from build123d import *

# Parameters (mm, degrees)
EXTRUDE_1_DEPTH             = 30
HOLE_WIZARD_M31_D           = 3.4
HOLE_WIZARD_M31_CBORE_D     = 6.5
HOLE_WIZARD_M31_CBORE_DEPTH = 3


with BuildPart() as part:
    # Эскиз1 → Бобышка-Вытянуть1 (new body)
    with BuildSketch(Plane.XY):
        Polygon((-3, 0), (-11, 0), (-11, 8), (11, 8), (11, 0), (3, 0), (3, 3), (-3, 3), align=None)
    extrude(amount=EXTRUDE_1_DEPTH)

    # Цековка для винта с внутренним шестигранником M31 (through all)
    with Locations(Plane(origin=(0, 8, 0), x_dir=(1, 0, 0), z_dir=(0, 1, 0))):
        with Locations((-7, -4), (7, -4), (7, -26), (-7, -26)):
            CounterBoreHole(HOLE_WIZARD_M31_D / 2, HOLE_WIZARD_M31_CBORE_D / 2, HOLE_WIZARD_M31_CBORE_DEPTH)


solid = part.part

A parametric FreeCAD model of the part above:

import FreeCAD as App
import Part
import Sketcher
Q = App.Units.Quantity


def add_polygon(sketch, points):
    """Adds a closed chain of lines whose ends are joined by coincident constraints."""
    first, n = sketch.GeometryCount, len(points)
    for a, b in zip(points, points[1:] + points[:1]):
        sketch.addGeometry(Part.LineSegment(App.Vector(*a, 0), App.Vector(*b, 0)), False)
    for i in range(n):
        sketch.addConstraint(Sketcher.Constraint("Coincident", first + i, 2, first + (i + 1) % n, 1))

doc = App.newDocument("Part")
params = doc.addObject("Spreadsheet::Sheet", "Params")
for row, (alias, value) in enumerate([
    ("sketch1_width", "8 mm"),
    ("sketch1_width2", "6 mm"),
    ("sketch1_height", "3 mm"),
    ("pad1_length", "30 mm"),
    ("sketch2_diameter", "3.4 mm"),
    ("hole_diameter", "3.4 mm"),
    ("hole_cbore_diameter", "6.5 mm"),
    ("hole_cbore_depth", "3 mm"),
], start=1):
    params.set(f"A{row}", alias)
    params.set(f"B{row}", "=" + value)
    params.setAlias(f"B{row}", alias)

body = doc.addObject("PartDesign::Body", "Body")

sketch1 = body.newObject("Sketcher::SketchObject", "Sketch")
sketch1.AttachmentSupport = (doc.getObject("XY_Plane"), [""])
sketch1.MapMode = "FlatFace"
add_polygon(sketch1, [(-11, 0), (-3, 0), (-3, 3), (3, 3), (3, 0), (11, 0), (11, 8), (-11, 8)])
sketch1.addConstraint([
    Sketcher.Constraint("Horizontal", 0),
    Sketcher.Constraint("Vertical", 1),
    Sketcher.Constraint("Horizontal", 2),
    Sketcher.Constraint("Vertical", 3),
    Sketcher.Constraint("Horizontal", 4),
    Sketcher.Constraint("Vertical", 5),
    Sketcher.Constraint("Horizontal", 6),
    Sketcher.Constraint("Vertical", 7),
    Sketcher.Constraint("Symmetric", 0, 2, 3, 2, -1, 1),
    Sketcher.Constraint("Symmetric", 4, 2, 7, 2, -2),
    Sketcher.Constraint("Equal", 4, 5),
    Sketcher.Constraint("DistanceX", 0, 1, 0, 2, Q("8 mm")),
    Sketcher.Constraint("DistanceX", 2, 1, 2, 2, Q("6 mm")),
    Sketcher.Constraint("DistanceY", 1, 1, 1, 2, Q("3 mm")),
])
sketch1.setExpression("Constraints[19]", "Params.sketch1_width")
sketch1.setExpression("Constraints[20]", "Params.sketch1_width2")
sketch1.setExpression("Constraints[21]", "Params.sketch1_height")
pad1 = body.newObject("PartDesign::Pad", "Pad")
pad1.Profile = sketch1
pad1.setExpression("Length", "Params.pad1_length")

sketch2 = body.newObject("Sketcher::SketchObject", "Sketch001")
sketch2.AttachmentSupport = (doc.getObject("XZ_Plane"), [""])
sketch2.MapMode = "FlatFace"
sketch2.AttachmentOffset = App.Placement(App.Vector(0, 0, -8), App.Rotation())
sketch2.addGeometry([
    Part.Circle(App.Vector(-7, 4, 0), App.Vector(0, 0, 1), 1.7),
    Part.Circle(App.Vector(7, 4, 0), App.Vector(0, 0, 1), 1.7),
    Part.Circle(App.Vector(7, 26, 0), App.Vector(0, 0, 1), 1.7),
    Part.Circle(App.Vector(-7, 26, 0), App.Vector(0, 0, 1), 1.7),
], False)
sketch2.addConstraint([
    Sketcher.Constraint("Equal", 0, 1),
    Sketcher.Constraint("Equal", 1, 2),
    Sketcher.Constraint("Equal", 2, 3),
    Sketcher.Constraint("Symmetric", 0, 3, 1, 3, -2),
    Sketcher.Constraint("Symmetric", 2, 3, 3, 3, -2),
    Sketcher.Constraint("Vertical", 1, 3, 2, 3),
    Sketcher.Constraint("Diameter", 0, Q("3.4 mm")),
    Sketcher.Constraint("DistanceX", 0, 3, -1, 1, Q("7 mm")),
    Sketcher.Constraint("DistanceY", -1, 1, 0, 3, Q("4 mm")),
    Sketcher.Constraint("DistanceY", -1, 1, 2, 3, Q("26 mm")),
])
sketch2.setExpression("Constraints[6]", "Params.sketch2_diameter")
doc.recompute()
hole = body.newObject("PartDesign::Hole", "Hole")
hole.Profile = sketch2
hole.ThreadType = "None"
hole.setExpression("Diameter", "Params.hole_diameter")
hole.DepthType = "ThroughAll"
hole.HoleCutType = "Counterbore"
hole.setExpression("HoleCutDiameter", "Params.hole_cbore_diameter")
hole.setExpression("HoleCutDepth", "Params.hole_cbore_depth")
hole.Reversed = True

doc.recompute()
